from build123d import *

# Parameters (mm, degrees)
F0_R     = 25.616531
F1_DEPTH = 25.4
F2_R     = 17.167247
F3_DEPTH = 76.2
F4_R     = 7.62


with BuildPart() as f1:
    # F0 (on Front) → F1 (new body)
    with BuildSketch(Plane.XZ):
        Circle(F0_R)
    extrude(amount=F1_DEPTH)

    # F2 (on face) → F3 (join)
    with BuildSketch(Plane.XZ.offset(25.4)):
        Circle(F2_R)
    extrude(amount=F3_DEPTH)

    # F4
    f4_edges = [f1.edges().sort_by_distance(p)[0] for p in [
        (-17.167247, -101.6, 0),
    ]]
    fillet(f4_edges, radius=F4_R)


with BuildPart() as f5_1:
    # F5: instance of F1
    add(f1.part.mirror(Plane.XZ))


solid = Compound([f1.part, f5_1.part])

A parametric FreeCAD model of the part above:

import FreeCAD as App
import Part
import Sketcher
from FreeCAD import Vector
Q = App.Units.Quantity


def edges_at(feature, points):
    """Names of the edges that pass closest to the given points."""
    edges = feature.Shape.Edges
    near = lambda p: min(range(len(edges)), key=lambda i: edges[i].distToShape(Part.Vertex(*p))[0])
    return sorted({f"Edge{near(p) + 1}" for p in points})

doc = App.newDocument("Part")
body = doc.addObject("PartDesign::Body", "Body")

# Sketch on XZ plane
sketch1 = doc.addObject("Sketcher::SketchObject", "Sketch")
body.addObject(sketch1)
sketch1.AttachmentSupport = (doc.XZ_Plane, [""])
sketch1.MapMode = "FlatFace"
sketch1.addGeometry(Part.Circle(Vector(0, 0, 0), Vector(0, 0, 1), 25.616531), False)
sketch1.addConstraint(Sketcher.Constraint("Coincident", 0, 3, -1, 1))
sketch1.addConstraint(Sketcher.Constraint("Diameter", 0, 51.233062))
pad1 = doc.addObject("PartDesign::Pad", "Pad")
body.addObject(pad1)
pad1.Profile = sketch1
pad1.Length = Q("1 in")

# Sketch on XZ plane
sketch2 = doc.addObject("Sketcher::SketchObject", "Sketch001")
body.addObject(sketch2)
sketch2.AttachmentSupport = (doc.XZ_Plane, [""])
sketch2.MapMode = "FlatFace"
sketch2.AttachmentOffset = App.Placement(Vector(0, 0, 1 * 25.4), App.Rotation())
sketch2.addGeometry(Part.Circle(Vector(0, 0, 0), Vector(0, 0, 1), 17.167247), False)
sketch2.addConstraint(Sketcher.Constraint("Coincident", 0, 3, -1, 1))
sketch2.addConstraint(Sketcher.Constraint("Diameter", 0, 34.334494))
pad2 = doc.addObject("PartDesign::Pad", "Pad001")
body.addObject(pad2)
pad2.Profile = sketch2
pad2.Length = Q("3 in")
doc.recompute()

fillet = doc.addObject("PartDesign::Fillet", "Fillet")
body.addObject(fillet)
fillet.Base = (pad2, edges_at(pad2, [(-17.167, -101.6, 0)]))
fillet.Radius = Q("0.3 in")
body2 = doc.addObject("PartDesign::Body", "Body001")
doc.recompute()

mirroring = doc.addObject("Part::Mirroring", "Mirroring")
mirroring.Source = body
mirroring.Base = Vector(0, 0, 0)
mirroring.Normal = Vector(0, -1, 0)
body2.BaseFeature = mirroring
doc.recompute()
mirroring.Visibility = False

doc.recompute()
